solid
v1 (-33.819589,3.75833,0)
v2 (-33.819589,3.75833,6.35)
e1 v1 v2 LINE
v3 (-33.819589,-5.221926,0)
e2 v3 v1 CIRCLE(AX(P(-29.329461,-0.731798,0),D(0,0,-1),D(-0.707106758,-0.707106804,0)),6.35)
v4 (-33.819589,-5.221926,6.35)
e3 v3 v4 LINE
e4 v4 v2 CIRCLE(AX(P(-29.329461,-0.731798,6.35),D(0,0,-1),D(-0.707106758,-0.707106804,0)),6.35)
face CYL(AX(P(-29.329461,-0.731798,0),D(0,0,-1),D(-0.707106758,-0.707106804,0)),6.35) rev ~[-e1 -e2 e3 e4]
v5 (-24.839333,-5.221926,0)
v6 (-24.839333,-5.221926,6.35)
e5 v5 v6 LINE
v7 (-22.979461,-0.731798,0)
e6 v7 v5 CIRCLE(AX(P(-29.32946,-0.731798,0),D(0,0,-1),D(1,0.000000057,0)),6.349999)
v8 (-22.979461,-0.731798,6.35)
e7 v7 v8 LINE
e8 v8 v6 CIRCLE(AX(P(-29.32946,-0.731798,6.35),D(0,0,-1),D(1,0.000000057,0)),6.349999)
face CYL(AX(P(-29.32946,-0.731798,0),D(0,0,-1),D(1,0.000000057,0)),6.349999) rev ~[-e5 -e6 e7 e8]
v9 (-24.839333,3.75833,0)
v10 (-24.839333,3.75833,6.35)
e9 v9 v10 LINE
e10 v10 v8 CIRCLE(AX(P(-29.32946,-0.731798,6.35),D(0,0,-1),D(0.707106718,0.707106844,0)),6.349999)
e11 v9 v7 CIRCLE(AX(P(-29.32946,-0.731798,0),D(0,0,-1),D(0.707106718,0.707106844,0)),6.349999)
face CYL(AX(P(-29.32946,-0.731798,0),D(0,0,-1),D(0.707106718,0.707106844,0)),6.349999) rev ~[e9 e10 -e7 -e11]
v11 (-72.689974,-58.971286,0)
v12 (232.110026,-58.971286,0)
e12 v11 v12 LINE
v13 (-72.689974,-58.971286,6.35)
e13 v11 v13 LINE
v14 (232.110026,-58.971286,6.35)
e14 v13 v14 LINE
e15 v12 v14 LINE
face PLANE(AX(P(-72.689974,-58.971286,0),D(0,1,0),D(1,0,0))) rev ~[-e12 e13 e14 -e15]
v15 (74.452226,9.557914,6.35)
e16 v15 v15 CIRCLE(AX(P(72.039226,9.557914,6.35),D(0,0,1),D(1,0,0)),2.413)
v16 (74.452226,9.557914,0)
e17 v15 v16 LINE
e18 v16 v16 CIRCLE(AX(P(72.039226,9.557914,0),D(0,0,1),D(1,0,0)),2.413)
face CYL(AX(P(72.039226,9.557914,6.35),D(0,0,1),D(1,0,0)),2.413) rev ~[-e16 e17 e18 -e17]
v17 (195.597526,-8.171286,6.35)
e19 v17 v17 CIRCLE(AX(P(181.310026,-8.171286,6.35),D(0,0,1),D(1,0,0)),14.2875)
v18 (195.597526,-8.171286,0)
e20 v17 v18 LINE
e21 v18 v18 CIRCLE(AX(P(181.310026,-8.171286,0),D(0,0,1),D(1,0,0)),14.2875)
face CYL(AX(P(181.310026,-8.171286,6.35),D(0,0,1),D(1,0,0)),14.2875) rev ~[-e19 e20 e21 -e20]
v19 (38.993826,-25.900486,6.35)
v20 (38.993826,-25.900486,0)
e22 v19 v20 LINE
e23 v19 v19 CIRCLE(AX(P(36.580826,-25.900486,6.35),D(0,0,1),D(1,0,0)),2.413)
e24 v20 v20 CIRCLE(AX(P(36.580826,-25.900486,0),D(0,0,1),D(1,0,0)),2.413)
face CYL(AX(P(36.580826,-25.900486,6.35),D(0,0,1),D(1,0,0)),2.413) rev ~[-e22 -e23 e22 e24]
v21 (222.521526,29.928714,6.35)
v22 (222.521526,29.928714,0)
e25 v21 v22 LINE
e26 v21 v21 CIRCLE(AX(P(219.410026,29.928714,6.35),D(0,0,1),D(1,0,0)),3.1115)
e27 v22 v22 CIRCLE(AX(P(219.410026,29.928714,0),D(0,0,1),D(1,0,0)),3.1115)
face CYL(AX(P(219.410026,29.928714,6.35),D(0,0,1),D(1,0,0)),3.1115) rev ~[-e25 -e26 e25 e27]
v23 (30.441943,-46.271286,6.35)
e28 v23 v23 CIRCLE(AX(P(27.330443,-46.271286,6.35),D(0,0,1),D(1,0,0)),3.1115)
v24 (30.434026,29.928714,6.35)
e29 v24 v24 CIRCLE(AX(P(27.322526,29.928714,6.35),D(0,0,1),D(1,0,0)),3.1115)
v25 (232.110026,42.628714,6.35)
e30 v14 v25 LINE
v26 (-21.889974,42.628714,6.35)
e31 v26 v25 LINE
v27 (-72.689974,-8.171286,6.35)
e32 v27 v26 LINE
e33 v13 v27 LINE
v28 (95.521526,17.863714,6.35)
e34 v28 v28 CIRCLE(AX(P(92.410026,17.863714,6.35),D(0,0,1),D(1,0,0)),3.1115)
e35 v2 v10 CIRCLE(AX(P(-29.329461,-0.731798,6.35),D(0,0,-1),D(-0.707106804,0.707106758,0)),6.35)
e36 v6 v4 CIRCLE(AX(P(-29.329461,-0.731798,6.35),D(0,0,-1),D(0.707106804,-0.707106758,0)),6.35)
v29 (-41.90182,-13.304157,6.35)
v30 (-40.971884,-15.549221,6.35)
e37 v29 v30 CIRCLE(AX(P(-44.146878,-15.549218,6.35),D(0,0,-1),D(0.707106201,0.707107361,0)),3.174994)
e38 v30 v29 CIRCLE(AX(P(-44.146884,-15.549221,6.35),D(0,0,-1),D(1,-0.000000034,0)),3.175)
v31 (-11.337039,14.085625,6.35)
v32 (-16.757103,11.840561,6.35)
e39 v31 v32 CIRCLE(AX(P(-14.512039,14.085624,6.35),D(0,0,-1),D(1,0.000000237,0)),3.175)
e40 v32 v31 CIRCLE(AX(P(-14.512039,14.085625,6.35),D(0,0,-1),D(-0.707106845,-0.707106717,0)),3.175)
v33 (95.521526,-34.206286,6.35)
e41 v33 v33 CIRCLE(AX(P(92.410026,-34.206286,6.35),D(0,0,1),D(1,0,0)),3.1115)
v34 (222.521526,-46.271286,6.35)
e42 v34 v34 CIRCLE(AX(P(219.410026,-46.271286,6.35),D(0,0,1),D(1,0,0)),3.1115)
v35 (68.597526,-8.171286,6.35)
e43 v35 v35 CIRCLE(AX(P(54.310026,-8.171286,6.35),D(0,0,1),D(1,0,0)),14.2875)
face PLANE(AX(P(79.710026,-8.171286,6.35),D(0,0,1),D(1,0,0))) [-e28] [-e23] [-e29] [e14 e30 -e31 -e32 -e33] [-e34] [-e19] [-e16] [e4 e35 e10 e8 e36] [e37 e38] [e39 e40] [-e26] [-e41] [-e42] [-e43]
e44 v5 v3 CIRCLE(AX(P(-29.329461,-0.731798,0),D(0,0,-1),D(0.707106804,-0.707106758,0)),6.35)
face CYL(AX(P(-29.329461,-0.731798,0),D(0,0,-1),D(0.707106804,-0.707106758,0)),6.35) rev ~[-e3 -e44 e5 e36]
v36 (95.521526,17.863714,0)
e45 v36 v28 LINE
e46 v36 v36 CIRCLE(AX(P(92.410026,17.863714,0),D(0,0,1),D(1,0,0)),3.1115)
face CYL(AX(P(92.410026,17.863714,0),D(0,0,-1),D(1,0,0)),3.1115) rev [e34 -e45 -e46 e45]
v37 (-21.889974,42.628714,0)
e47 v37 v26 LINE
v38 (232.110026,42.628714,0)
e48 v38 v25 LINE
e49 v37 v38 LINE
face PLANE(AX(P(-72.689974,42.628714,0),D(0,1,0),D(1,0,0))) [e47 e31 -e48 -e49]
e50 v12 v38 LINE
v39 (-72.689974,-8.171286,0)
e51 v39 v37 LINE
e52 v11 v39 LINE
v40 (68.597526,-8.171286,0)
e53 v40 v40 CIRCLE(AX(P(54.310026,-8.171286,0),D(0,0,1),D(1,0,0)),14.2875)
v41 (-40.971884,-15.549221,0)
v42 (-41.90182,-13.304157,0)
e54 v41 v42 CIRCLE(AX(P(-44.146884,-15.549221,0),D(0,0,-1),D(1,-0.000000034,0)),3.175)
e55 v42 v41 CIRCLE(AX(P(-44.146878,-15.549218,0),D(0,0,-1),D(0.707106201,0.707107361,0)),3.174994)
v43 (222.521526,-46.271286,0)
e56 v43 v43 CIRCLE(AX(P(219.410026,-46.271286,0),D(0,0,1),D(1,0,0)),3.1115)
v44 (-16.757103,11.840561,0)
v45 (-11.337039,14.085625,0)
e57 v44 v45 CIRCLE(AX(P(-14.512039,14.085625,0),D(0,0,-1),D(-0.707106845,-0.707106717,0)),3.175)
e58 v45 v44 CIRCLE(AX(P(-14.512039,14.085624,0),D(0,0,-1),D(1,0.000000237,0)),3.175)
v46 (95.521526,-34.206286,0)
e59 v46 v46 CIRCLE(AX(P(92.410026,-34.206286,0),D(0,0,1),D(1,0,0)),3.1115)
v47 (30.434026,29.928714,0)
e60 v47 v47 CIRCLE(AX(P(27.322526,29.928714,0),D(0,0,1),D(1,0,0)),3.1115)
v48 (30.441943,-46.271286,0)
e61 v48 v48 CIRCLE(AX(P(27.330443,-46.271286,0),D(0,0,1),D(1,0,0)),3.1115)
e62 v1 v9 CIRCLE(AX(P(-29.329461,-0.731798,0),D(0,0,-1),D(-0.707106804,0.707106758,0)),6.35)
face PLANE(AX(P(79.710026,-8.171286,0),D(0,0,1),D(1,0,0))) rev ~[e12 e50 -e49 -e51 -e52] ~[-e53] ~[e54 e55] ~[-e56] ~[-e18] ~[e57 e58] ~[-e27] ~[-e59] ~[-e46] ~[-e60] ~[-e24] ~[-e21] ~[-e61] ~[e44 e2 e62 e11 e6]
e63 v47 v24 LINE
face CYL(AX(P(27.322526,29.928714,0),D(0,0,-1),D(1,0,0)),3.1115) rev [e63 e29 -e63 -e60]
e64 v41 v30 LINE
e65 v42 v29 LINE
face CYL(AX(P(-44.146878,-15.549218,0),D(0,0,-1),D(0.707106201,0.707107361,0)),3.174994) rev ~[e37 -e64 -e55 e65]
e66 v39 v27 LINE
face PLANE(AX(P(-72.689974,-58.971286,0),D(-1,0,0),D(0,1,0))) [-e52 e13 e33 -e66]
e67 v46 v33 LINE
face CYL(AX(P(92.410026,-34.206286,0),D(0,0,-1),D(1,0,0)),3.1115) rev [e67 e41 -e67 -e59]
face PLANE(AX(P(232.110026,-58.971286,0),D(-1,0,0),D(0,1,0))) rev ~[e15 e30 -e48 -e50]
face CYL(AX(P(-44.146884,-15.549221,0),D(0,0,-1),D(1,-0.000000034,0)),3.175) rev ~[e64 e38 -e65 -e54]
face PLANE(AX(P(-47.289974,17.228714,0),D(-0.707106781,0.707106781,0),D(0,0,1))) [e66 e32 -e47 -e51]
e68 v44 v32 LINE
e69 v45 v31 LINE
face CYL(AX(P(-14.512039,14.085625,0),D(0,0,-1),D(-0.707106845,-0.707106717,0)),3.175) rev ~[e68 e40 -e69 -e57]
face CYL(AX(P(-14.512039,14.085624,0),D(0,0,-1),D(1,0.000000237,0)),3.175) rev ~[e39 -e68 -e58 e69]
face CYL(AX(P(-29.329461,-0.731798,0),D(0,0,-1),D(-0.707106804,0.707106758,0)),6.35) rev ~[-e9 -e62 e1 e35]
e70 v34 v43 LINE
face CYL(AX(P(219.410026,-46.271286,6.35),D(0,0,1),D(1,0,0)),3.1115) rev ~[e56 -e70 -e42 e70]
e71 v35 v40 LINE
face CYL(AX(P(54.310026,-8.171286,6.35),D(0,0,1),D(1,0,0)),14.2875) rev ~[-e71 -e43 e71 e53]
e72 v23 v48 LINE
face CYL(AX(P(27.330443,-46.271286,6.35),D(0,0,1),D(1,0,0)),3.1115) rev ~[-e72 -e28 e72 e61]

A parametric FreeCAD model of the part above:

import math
import FreeCAD as App
import Part
import Sketcher

V = App.Vector
Q = App.Units.Quantity


def edges_at(feature, points):
    """Names of the edges that pass closest to the given points."""
    edges = feature.Shape.Edges
    near = lambda p: min(range(len(edges)), key=lambda i: edges[i].distToShape(Part.Vertex(*p))[0])
    return sorted({f"Edge{near(p) + 1}" for p in points})

doc = App.newDocument("Part")
body = doc.addObject("PartDesign::Body", "Body")

# Sketch on XY plane
sketch1 = body.newObject("Sketcher::SketchObject", "Sketch")
sketch1.AttachmentSupport = (doc.getObject("XY_Plane"), [""])
sketch1.MapMode = "FlatFace"
sketch1.addGeometry([
    Part.LineSegment(V(-72.689974, 42.628714, 0), V(-72.689974, -58.971286, 0)),
    Part.LineSegment(V(-72.689974, -58.971286, 0), V(232.110026, -58.971286, 0)),
    Part.LineSegment(V(232.110026, -58.971286, 0), V(232.110026, 42.628714, 0)),
    Part.LineSegment(V(232.110026, 42.628714, 0), V(-72.689974, 42.628714, 0)),
], False)
sketch1.addConstraint([
    Sketcher.Constraint("Coincident", 0, 2, 1, 1),
    Sketcher.Constraint("Coincident", 1, 2, 2, 1),
    Sketcher.Constraint("Coincident", 2, 2, 3, 1),
    Sketcher.Constraint("Coincident", 3, 2, 0, 1),
    Sketcher.Constraint("Vertical", 0),
    Sketcher.Constraint("Horizontal", 1),
    Sketcher.Constraint("Vertical", 2),
    Sketcher.Constraint("Horizontal", 3),
    Sketcher.Constraint("DistanceX", 1, 1, 1, 2, Q("12 in")),
    Sketcher.Constraint("DistanceY", 0, 2, 0, 1, Q("4 in")),
    Sketcher.Constraint("DistanceX", 0, 2, -1, 1, 72.689974),
    Sketcher.Constraint("DistanceY", 0, 2, -1, 1, 58.971286),
])
pad1 = body.newObject("PartDesign::Pad", "Pad")
pad1.Profile = sketch1
pad1.Length = Q("0.25 in")

# Sketch on XY plane
sketch2 = body.newObject("Sketcher::SketchObject", "Sketch001")
sketch2.AttachmentSupport = (doc.getObject("XY_Plane"), [""])
sketch2.MapMode = "FlatFace"
sketch2.AttachmentOffset = App.Placement(V(0, 0, 0.25 * 25.4), App.Rotation())
sketch2.addGeometry(Part.Circle(V(54.310026, -8.171286, 0), V(0, 0, 1), 14.2875), False)
sketch2.addConstraint([
    Sketcher.Constraint("Diameter", 0, Q("1.125 in")),
    Sketcher.Constraint("DistanceX", -1, 1, 0, 3, 54.310026),
    Sketcher.Constraint("DistanceY", 0, 3, -1, 1, 8.171286),
])
pocket1 = body.newObject("PartDesign::Pocket", "Pocket")
pocket1.Profile = sketch2
pocket1.Length = Q("0.25 in")

# Sketch on XY plane
sketch3 = body.newObject("Sketcher::SketchObject", "Sketch002")
sketch3.AttachmentSupport = (doc.getObject("XY_Plane"), [""])
sketch3.MapMode = "FlatFace"
sketch3.AttachmentOffset = App.Placement(V(0, 0, 0.25 * 25.4), App.Rotation())
sketch3.addGeometry([
    Part.Circle(V(36.580826, -25.900486, 0), V(0, 0, 1), 2.413),
    Part.Circle(V(72.039226, 9.557914, 0), V(0, 0, 1), 2.413),
], False)
sketch3.addConstraint([
    Sketcher.Constraint("Equal", 0, 1),
    Sketcher.Constraint("Diameter", 0, Q("0.19 in")),
    Sketcher.Constraint("DistanceX", 0, 3, 1, 3, Q("1.396 in")),
    Sketcher.Constraint("DistanceY", 0, 3, 1, 3, Q("1.396 in")),
    Sketcher.Constraint("DistanceX", -1, 1, 0, 3, 36.580826),
    Sketcher.Constraint("DistanceY", 0, 3, -1, 1, 25.900486),
])
pocket2 = body.newObject("PartDesign::Pocket", "Pocket001")
pocket2.Profile = sketch3
pocket2.Length = Q("0.25 in")

# Sketch on XY plane
sketch4 = body.newObject("Sketcher::SketchObject", "Sketch003")
sketch4.AttachmentSupport = (doc.getObject("XY_Plane"), [""])
sketch4.MapMode = "FlatFace"
sketch4.addGeometry(Part.Circle(V(27.322526, 29.928714, 0), V(0, 0, 1), 3.1115), False)
sketch4.addConstraint([
    Sketcher.Constraint("Diameter", 0, Q("0.245 in")),
    Sketcher.Constraint("DistanceX", -1, 1, 0, 3, 27.322526),
    Sketcher.Constraint("DistanceY", -1, 1, 0, 3, 29.928714),
])
pocket3 = body.newObject("PartDesign::Pocket", "Pocket002")
pocket3.Profile = sketch4
pocket3.Length = Q("0.25 in")
pocket3.Reversed = True

# Sketch on XY plane
sketch5 = body.newObject("Sketcher::SketchObject", "Sketch004")
sketch5.AttachmentSupport = (doc.getObject("XY_Plane"), [""])
sketch5.MapMode = "FlatFace"
sketch5.AttachmentOffset = App.Placement(V(0, 0, 0.25 * 25.4), App.Rotation())
sketch5.addGeometry(Part.Circle(V(219.410026, 29.928714, 0), V(0, 0, 1), 3.1115), False)
sketch5.addConstraint([
    Sketcher.Constraint("Diameter", 0, Q("0.245 in")),
    Sketcher.Constraint("DistanceX", -1, 1, 0, 3, 219.410026),
    Sketcher.Constraint("DistanceY", -1, 1, 0, 3, 29.928714),
])
pocket4 = body.newObject("PartDesign::Pocket", "Pocket003")
pocket4.Profile = sketch5
pocket4.Length = Q("0.25 in")

# Sketch on XY plane
sketch6 = body.newObject("Sketcher::SketchObject", "Sketch005")
sketch6.AttachmentSupport = (doc.getObject("XY_Plane"), [""])
sketch6.MapMode = "FlatFace"
sketch6.AttachmentOffset = App.Placement(V(0, 0, 0.25 * 25.4), App.Rotation())
sketch6.addGeometry(Part.Circle(V(27.330443, -46.271286, 0), V(0, 0, 1), 3.1115), False)
sketch6.addConstraint([
    Sketcher.Constraint("Diameter", 0, Q("0.245 in")),
    Sketcher.Constraint("DistanceX", -1, 1, 0, 3, 27.330443),
    Sketcher.Constraint("DistanceY", 0, 3, -1, 1, 46.271286),
])
pocket5 = body.newObject("PartDesign::Pocket", "Pocket004")
pocket5.Profile = sketch6
pocket5.Length = Q("0.25 in")

# Sketch on XY plane
sketch7 = body.newObject("Sketcher::SketchObject", "Sketch006")
sketch7.AttachmentSupport = (doc.getObject("XY_Plane"), [""])
sketch7.MapMode = "FlatFace"
sketch7.AttachmentOffset = App.Placement(V(0, 0, 0.25 * 25.4), App.Rotation())
sketch7.addGeometry(Part.Circle(V(219.410026, -46.271286, 0), V(0, 0, 1), 3.1115), False)
sketch7.addConstraint([
    Sketcher.Constraint("Diameter", 0, Q("0.245 in")),
    Sketcher.Constraint("DistanceX", -1, 1, 0, 3, 219.410026),
    Sketcher.Constraint("DistanceY", 0, 3, -1, 1, 46.271286),
])
pocket6 = body.newObject("PartDesign::Pocket", "Pocket005")
pocket6.Profile = sketch7
pocket6.Length = Q("0.25 in")

# Sketch on XY plane
sketch8 = body.newObject("Sketcher::SketchObject", "Sketch007")
sketch8.AttachmentSupport = (doc.getObject("XY_Plane"), [""])
sketch8.MapMode = "FlatFace"
sketch8.AttachmentOffset = App.Placement(V(0, 0, 0.25 * 25.4), App.Rotation())
sketch8.addGeometry(Part.Circle(V(181.310026, -8.171286, 0), V(0, 0, 1), 14.2875), False)
sketch8.addConstraint([
    Sketcher.Constraint("Diameter", 0, Q("1.125 in")),
    Sketcher.Constraint("DistanceX", -1, 1, 0, 3, 181.310026),
    Sketcher.Constraint("DistanceY", 0, 3, -1, 1, 8.171286),
])
pocket7 = body.newObject("PartDesign::Pocket", "Pocket006")
pocket7.Profile = sketch8
pocket7.Length = Q("0.25 in")

# Sketch on XY plane
sketch9 = body.newObject("Sketcher::SketchObject", "Sketch008")
sketch9.AttachmentSupport = (doc.getObject("XY_Plane"), [""])
sketch9.MapMode = "FlatFace"
sketch9.addGeometry(Part.Circle(V(92.410026, 17.863714, 0), V(0, 0, 1), 3.1115), False)
sketch9.addConstraint([
    Sketcher.Constraint("Diameter", 0, Q("0.245 in")),
    Sketcher.Constraint("DistanceX", -1, 1, 0, 3, 92.410026),
    Sketcher.Constraint("DistanceY", -1, 1, 0, 3, 17.863714),
])
pocket8 = body.newObject("PartDesign::Pocket", "Pocket007")
pocket8.Profile = sketch9
pocket8.Length = Q("0.25 in")
pocket8.Reversed = True

# Sketch on XY plane
sketch10 = body.newObject("Sketcher::SketchObject", "Sketch009")
sketch10.AttachmentSupport = (doc.getObject("XY_Plane"), [""])
sketch10.MapMode = "FlatFace"
sketch10.addGeometry(Part.Circle(V(92.410026, -34.206286, 0), V(0, 0, 1), 3.1115), False)
sketch10.addConstraint([
    Sketcher.Constraint("Diameter", 0, Q("0.245 in")),
    Sketcher.Constraint("DistanceX", -1, 1, 0, 3, 92.410026),
    Sketcher.Constraint("DistanceY", 0, 3, -1, 1, 34.206286),
])
pocket9 = body.newObject("PartDesign::Pocket", "Pocket008")
pocket9.Profile = sketch10
pocket9.Length = Q("0.25 in")
pocket9.Reversed = True
doc.recompute()

chamfer = body.newObject("PartDesign::Chamfer", "Chamfer")
chamfer.Base = (pocket9, edges_at(pocket9, [(-72.69, 42.629, 3.175)]))
chamfer.Size = Q("2 in")

# Sketch on XY plane
sketch11 = body.newObject("Sketcher::SketchObject", "Sketch010")
sketch11.AttachmentSupport = (doc.getObject("XY_Plane"), [""])
sketch11.MapMode = "FlatFace"
sketch11.addGeometry([
    Part.ArcOfCircle(Part.Circle(V(-44.146884, -15.549221, 0), V(0, 0, 1), 3.175), math.radians(45.000004), math.radians(359.999998)),  # 0
    Part.ArcOfCircle(Part.Circle(V(-44.146878, -15.549218, 0), V(0, 0, 1), 3.174994), math.radians(-0.000045), math.radians(45.000047)),  # 1
    Part.ArcOfCircle(Part.Circle(V(-29.329461, -0.731798, 0), V(0, 0, 1), 6.35), math.radians(134.999998), math.radians(225.000002)),  # 2
    Part.ArcOfCircle(Part.Circle(V(-29.329461, -0.731798, 0), V(0, 0, 1), 6.35), math.radians(44.999998), math.radians(135.000002)),  # 3
    Part.ArcOfCircle(Part.Circle(V(-29.32946, -0.731798, 0), V(0, 0, 1), 6.349999), math.radians(-0.000003), math.radians(45.000005)),  # 4
    Part.ArcOfCircle(Part.Circle(V(-29.32946, -0.731798, 0), V(0, 0, 1), 6.349999), math.radians(-45.000005), math.radians(0.000003)),  # 5
    Part.ArcOfCircle(Part.Circle(V(-29.329461, -0.731798, 0), V(0, 0, 1), 6.35), math.radians(-135.000002), math.radians(-44.999998)),  # 6
    Part.ArcOfCircle(Part.Circle(V(-14.512039, 14.085624, 0), V(0, 0, 1), 3.175), math.radians(-135.000014), math.radians(0.000014)),  # 7
    Part.ArcOfCircle(Part.Circle(V(-14.512039, 14.085625, 0), V(0, 0, 1), 3.175), math.radians(0.000005), math.radians(224.999995)),  # 8
], False)
sketch11.addConstraint([
    Sketcher.Constraint("Tangent", 0, 1, 1, 2),
    Sketcher.Constraint("Coincident", 1, 1, 0, 2),
    Sketcher.Constraint("Tangent", 2, 1, 3, 2),
    Sketcher.Constraint("Tangent", 3, 1, 4, 2),
    Sketcher.Constraint("Tangent", 4, 1, 5, 2),
    Sketcher.Constraint("Tangent", 5, 1, 6, 2),
    Sketcher.Constraint("Tangent", 6, 1, 2, 2),
    Sketcher.Constraint("Tangent", 7, 1, 8, 2),
    Sketcher.Constraint("Coincident", 8, 1, 7, 2),
    Sketcher.Constraint("Coincident", 4, 3, 2, 3),
    Sketcher.Constraint("Equal", 0, 7),
    Sketcher.Constraint("Horizontal", 0, 3, 1, 1),
    Sketcher.Constraint("Horizontal", 2, 1, 3, 1),
    Sketcher.Constraint("Horizontal", 6, 3, 4, 1),
    Sketcher.Constraint("Horizontal", 5, 1, 6, 1),
    Sketcher.Constraint("Horizontal", 7, 3, 8, 1),
    Sketcher.Constraint("Vertical", 3, 1, 5, 1),
    Sketcher.Constraint("Radius", 2, Q("0.25 in")),
    Sketcher.Constraint("Radius", 0, Q("0.125 in")),
    Sketcher.Constraint("DistanceY", 5, 3, -1, 1, 0.731798),
    Sketcher.Constraint("DistanceY", 0, 3, -1, 1, 15.549221),
    Sketcher.Constraint("DistanceX", 2, 3, -1, 1, 29.329461),
    Sketcher.Constraint("DistanceX", 7, 3, -1, 1, 14.512039),
    Sketcher.Constraint("DistanceX", 0, 1, -1, 1, 41.90182),
    Sketcher.Constraint("DistanceX", 2, 1, -1, 1, 33.819589),
    Sketcher.Constraint("DistanceY", -1, 1, 7, 1, 11.840561),
    Sketcher.Constraint("DistanceY", 4, 3, 7, 3, 14.817422),
    Sketcher.Constraint("DistanceY", 1, 3, 0, 1, 2.245061),
])
pocket10 = body.newObject("PartDesign::Pocket", "Pocket009")
pocket10.Profile = sketch11
pocket10.Length = Q("0.25 in")
pocket10.Reversed = True

doc.recompute()
